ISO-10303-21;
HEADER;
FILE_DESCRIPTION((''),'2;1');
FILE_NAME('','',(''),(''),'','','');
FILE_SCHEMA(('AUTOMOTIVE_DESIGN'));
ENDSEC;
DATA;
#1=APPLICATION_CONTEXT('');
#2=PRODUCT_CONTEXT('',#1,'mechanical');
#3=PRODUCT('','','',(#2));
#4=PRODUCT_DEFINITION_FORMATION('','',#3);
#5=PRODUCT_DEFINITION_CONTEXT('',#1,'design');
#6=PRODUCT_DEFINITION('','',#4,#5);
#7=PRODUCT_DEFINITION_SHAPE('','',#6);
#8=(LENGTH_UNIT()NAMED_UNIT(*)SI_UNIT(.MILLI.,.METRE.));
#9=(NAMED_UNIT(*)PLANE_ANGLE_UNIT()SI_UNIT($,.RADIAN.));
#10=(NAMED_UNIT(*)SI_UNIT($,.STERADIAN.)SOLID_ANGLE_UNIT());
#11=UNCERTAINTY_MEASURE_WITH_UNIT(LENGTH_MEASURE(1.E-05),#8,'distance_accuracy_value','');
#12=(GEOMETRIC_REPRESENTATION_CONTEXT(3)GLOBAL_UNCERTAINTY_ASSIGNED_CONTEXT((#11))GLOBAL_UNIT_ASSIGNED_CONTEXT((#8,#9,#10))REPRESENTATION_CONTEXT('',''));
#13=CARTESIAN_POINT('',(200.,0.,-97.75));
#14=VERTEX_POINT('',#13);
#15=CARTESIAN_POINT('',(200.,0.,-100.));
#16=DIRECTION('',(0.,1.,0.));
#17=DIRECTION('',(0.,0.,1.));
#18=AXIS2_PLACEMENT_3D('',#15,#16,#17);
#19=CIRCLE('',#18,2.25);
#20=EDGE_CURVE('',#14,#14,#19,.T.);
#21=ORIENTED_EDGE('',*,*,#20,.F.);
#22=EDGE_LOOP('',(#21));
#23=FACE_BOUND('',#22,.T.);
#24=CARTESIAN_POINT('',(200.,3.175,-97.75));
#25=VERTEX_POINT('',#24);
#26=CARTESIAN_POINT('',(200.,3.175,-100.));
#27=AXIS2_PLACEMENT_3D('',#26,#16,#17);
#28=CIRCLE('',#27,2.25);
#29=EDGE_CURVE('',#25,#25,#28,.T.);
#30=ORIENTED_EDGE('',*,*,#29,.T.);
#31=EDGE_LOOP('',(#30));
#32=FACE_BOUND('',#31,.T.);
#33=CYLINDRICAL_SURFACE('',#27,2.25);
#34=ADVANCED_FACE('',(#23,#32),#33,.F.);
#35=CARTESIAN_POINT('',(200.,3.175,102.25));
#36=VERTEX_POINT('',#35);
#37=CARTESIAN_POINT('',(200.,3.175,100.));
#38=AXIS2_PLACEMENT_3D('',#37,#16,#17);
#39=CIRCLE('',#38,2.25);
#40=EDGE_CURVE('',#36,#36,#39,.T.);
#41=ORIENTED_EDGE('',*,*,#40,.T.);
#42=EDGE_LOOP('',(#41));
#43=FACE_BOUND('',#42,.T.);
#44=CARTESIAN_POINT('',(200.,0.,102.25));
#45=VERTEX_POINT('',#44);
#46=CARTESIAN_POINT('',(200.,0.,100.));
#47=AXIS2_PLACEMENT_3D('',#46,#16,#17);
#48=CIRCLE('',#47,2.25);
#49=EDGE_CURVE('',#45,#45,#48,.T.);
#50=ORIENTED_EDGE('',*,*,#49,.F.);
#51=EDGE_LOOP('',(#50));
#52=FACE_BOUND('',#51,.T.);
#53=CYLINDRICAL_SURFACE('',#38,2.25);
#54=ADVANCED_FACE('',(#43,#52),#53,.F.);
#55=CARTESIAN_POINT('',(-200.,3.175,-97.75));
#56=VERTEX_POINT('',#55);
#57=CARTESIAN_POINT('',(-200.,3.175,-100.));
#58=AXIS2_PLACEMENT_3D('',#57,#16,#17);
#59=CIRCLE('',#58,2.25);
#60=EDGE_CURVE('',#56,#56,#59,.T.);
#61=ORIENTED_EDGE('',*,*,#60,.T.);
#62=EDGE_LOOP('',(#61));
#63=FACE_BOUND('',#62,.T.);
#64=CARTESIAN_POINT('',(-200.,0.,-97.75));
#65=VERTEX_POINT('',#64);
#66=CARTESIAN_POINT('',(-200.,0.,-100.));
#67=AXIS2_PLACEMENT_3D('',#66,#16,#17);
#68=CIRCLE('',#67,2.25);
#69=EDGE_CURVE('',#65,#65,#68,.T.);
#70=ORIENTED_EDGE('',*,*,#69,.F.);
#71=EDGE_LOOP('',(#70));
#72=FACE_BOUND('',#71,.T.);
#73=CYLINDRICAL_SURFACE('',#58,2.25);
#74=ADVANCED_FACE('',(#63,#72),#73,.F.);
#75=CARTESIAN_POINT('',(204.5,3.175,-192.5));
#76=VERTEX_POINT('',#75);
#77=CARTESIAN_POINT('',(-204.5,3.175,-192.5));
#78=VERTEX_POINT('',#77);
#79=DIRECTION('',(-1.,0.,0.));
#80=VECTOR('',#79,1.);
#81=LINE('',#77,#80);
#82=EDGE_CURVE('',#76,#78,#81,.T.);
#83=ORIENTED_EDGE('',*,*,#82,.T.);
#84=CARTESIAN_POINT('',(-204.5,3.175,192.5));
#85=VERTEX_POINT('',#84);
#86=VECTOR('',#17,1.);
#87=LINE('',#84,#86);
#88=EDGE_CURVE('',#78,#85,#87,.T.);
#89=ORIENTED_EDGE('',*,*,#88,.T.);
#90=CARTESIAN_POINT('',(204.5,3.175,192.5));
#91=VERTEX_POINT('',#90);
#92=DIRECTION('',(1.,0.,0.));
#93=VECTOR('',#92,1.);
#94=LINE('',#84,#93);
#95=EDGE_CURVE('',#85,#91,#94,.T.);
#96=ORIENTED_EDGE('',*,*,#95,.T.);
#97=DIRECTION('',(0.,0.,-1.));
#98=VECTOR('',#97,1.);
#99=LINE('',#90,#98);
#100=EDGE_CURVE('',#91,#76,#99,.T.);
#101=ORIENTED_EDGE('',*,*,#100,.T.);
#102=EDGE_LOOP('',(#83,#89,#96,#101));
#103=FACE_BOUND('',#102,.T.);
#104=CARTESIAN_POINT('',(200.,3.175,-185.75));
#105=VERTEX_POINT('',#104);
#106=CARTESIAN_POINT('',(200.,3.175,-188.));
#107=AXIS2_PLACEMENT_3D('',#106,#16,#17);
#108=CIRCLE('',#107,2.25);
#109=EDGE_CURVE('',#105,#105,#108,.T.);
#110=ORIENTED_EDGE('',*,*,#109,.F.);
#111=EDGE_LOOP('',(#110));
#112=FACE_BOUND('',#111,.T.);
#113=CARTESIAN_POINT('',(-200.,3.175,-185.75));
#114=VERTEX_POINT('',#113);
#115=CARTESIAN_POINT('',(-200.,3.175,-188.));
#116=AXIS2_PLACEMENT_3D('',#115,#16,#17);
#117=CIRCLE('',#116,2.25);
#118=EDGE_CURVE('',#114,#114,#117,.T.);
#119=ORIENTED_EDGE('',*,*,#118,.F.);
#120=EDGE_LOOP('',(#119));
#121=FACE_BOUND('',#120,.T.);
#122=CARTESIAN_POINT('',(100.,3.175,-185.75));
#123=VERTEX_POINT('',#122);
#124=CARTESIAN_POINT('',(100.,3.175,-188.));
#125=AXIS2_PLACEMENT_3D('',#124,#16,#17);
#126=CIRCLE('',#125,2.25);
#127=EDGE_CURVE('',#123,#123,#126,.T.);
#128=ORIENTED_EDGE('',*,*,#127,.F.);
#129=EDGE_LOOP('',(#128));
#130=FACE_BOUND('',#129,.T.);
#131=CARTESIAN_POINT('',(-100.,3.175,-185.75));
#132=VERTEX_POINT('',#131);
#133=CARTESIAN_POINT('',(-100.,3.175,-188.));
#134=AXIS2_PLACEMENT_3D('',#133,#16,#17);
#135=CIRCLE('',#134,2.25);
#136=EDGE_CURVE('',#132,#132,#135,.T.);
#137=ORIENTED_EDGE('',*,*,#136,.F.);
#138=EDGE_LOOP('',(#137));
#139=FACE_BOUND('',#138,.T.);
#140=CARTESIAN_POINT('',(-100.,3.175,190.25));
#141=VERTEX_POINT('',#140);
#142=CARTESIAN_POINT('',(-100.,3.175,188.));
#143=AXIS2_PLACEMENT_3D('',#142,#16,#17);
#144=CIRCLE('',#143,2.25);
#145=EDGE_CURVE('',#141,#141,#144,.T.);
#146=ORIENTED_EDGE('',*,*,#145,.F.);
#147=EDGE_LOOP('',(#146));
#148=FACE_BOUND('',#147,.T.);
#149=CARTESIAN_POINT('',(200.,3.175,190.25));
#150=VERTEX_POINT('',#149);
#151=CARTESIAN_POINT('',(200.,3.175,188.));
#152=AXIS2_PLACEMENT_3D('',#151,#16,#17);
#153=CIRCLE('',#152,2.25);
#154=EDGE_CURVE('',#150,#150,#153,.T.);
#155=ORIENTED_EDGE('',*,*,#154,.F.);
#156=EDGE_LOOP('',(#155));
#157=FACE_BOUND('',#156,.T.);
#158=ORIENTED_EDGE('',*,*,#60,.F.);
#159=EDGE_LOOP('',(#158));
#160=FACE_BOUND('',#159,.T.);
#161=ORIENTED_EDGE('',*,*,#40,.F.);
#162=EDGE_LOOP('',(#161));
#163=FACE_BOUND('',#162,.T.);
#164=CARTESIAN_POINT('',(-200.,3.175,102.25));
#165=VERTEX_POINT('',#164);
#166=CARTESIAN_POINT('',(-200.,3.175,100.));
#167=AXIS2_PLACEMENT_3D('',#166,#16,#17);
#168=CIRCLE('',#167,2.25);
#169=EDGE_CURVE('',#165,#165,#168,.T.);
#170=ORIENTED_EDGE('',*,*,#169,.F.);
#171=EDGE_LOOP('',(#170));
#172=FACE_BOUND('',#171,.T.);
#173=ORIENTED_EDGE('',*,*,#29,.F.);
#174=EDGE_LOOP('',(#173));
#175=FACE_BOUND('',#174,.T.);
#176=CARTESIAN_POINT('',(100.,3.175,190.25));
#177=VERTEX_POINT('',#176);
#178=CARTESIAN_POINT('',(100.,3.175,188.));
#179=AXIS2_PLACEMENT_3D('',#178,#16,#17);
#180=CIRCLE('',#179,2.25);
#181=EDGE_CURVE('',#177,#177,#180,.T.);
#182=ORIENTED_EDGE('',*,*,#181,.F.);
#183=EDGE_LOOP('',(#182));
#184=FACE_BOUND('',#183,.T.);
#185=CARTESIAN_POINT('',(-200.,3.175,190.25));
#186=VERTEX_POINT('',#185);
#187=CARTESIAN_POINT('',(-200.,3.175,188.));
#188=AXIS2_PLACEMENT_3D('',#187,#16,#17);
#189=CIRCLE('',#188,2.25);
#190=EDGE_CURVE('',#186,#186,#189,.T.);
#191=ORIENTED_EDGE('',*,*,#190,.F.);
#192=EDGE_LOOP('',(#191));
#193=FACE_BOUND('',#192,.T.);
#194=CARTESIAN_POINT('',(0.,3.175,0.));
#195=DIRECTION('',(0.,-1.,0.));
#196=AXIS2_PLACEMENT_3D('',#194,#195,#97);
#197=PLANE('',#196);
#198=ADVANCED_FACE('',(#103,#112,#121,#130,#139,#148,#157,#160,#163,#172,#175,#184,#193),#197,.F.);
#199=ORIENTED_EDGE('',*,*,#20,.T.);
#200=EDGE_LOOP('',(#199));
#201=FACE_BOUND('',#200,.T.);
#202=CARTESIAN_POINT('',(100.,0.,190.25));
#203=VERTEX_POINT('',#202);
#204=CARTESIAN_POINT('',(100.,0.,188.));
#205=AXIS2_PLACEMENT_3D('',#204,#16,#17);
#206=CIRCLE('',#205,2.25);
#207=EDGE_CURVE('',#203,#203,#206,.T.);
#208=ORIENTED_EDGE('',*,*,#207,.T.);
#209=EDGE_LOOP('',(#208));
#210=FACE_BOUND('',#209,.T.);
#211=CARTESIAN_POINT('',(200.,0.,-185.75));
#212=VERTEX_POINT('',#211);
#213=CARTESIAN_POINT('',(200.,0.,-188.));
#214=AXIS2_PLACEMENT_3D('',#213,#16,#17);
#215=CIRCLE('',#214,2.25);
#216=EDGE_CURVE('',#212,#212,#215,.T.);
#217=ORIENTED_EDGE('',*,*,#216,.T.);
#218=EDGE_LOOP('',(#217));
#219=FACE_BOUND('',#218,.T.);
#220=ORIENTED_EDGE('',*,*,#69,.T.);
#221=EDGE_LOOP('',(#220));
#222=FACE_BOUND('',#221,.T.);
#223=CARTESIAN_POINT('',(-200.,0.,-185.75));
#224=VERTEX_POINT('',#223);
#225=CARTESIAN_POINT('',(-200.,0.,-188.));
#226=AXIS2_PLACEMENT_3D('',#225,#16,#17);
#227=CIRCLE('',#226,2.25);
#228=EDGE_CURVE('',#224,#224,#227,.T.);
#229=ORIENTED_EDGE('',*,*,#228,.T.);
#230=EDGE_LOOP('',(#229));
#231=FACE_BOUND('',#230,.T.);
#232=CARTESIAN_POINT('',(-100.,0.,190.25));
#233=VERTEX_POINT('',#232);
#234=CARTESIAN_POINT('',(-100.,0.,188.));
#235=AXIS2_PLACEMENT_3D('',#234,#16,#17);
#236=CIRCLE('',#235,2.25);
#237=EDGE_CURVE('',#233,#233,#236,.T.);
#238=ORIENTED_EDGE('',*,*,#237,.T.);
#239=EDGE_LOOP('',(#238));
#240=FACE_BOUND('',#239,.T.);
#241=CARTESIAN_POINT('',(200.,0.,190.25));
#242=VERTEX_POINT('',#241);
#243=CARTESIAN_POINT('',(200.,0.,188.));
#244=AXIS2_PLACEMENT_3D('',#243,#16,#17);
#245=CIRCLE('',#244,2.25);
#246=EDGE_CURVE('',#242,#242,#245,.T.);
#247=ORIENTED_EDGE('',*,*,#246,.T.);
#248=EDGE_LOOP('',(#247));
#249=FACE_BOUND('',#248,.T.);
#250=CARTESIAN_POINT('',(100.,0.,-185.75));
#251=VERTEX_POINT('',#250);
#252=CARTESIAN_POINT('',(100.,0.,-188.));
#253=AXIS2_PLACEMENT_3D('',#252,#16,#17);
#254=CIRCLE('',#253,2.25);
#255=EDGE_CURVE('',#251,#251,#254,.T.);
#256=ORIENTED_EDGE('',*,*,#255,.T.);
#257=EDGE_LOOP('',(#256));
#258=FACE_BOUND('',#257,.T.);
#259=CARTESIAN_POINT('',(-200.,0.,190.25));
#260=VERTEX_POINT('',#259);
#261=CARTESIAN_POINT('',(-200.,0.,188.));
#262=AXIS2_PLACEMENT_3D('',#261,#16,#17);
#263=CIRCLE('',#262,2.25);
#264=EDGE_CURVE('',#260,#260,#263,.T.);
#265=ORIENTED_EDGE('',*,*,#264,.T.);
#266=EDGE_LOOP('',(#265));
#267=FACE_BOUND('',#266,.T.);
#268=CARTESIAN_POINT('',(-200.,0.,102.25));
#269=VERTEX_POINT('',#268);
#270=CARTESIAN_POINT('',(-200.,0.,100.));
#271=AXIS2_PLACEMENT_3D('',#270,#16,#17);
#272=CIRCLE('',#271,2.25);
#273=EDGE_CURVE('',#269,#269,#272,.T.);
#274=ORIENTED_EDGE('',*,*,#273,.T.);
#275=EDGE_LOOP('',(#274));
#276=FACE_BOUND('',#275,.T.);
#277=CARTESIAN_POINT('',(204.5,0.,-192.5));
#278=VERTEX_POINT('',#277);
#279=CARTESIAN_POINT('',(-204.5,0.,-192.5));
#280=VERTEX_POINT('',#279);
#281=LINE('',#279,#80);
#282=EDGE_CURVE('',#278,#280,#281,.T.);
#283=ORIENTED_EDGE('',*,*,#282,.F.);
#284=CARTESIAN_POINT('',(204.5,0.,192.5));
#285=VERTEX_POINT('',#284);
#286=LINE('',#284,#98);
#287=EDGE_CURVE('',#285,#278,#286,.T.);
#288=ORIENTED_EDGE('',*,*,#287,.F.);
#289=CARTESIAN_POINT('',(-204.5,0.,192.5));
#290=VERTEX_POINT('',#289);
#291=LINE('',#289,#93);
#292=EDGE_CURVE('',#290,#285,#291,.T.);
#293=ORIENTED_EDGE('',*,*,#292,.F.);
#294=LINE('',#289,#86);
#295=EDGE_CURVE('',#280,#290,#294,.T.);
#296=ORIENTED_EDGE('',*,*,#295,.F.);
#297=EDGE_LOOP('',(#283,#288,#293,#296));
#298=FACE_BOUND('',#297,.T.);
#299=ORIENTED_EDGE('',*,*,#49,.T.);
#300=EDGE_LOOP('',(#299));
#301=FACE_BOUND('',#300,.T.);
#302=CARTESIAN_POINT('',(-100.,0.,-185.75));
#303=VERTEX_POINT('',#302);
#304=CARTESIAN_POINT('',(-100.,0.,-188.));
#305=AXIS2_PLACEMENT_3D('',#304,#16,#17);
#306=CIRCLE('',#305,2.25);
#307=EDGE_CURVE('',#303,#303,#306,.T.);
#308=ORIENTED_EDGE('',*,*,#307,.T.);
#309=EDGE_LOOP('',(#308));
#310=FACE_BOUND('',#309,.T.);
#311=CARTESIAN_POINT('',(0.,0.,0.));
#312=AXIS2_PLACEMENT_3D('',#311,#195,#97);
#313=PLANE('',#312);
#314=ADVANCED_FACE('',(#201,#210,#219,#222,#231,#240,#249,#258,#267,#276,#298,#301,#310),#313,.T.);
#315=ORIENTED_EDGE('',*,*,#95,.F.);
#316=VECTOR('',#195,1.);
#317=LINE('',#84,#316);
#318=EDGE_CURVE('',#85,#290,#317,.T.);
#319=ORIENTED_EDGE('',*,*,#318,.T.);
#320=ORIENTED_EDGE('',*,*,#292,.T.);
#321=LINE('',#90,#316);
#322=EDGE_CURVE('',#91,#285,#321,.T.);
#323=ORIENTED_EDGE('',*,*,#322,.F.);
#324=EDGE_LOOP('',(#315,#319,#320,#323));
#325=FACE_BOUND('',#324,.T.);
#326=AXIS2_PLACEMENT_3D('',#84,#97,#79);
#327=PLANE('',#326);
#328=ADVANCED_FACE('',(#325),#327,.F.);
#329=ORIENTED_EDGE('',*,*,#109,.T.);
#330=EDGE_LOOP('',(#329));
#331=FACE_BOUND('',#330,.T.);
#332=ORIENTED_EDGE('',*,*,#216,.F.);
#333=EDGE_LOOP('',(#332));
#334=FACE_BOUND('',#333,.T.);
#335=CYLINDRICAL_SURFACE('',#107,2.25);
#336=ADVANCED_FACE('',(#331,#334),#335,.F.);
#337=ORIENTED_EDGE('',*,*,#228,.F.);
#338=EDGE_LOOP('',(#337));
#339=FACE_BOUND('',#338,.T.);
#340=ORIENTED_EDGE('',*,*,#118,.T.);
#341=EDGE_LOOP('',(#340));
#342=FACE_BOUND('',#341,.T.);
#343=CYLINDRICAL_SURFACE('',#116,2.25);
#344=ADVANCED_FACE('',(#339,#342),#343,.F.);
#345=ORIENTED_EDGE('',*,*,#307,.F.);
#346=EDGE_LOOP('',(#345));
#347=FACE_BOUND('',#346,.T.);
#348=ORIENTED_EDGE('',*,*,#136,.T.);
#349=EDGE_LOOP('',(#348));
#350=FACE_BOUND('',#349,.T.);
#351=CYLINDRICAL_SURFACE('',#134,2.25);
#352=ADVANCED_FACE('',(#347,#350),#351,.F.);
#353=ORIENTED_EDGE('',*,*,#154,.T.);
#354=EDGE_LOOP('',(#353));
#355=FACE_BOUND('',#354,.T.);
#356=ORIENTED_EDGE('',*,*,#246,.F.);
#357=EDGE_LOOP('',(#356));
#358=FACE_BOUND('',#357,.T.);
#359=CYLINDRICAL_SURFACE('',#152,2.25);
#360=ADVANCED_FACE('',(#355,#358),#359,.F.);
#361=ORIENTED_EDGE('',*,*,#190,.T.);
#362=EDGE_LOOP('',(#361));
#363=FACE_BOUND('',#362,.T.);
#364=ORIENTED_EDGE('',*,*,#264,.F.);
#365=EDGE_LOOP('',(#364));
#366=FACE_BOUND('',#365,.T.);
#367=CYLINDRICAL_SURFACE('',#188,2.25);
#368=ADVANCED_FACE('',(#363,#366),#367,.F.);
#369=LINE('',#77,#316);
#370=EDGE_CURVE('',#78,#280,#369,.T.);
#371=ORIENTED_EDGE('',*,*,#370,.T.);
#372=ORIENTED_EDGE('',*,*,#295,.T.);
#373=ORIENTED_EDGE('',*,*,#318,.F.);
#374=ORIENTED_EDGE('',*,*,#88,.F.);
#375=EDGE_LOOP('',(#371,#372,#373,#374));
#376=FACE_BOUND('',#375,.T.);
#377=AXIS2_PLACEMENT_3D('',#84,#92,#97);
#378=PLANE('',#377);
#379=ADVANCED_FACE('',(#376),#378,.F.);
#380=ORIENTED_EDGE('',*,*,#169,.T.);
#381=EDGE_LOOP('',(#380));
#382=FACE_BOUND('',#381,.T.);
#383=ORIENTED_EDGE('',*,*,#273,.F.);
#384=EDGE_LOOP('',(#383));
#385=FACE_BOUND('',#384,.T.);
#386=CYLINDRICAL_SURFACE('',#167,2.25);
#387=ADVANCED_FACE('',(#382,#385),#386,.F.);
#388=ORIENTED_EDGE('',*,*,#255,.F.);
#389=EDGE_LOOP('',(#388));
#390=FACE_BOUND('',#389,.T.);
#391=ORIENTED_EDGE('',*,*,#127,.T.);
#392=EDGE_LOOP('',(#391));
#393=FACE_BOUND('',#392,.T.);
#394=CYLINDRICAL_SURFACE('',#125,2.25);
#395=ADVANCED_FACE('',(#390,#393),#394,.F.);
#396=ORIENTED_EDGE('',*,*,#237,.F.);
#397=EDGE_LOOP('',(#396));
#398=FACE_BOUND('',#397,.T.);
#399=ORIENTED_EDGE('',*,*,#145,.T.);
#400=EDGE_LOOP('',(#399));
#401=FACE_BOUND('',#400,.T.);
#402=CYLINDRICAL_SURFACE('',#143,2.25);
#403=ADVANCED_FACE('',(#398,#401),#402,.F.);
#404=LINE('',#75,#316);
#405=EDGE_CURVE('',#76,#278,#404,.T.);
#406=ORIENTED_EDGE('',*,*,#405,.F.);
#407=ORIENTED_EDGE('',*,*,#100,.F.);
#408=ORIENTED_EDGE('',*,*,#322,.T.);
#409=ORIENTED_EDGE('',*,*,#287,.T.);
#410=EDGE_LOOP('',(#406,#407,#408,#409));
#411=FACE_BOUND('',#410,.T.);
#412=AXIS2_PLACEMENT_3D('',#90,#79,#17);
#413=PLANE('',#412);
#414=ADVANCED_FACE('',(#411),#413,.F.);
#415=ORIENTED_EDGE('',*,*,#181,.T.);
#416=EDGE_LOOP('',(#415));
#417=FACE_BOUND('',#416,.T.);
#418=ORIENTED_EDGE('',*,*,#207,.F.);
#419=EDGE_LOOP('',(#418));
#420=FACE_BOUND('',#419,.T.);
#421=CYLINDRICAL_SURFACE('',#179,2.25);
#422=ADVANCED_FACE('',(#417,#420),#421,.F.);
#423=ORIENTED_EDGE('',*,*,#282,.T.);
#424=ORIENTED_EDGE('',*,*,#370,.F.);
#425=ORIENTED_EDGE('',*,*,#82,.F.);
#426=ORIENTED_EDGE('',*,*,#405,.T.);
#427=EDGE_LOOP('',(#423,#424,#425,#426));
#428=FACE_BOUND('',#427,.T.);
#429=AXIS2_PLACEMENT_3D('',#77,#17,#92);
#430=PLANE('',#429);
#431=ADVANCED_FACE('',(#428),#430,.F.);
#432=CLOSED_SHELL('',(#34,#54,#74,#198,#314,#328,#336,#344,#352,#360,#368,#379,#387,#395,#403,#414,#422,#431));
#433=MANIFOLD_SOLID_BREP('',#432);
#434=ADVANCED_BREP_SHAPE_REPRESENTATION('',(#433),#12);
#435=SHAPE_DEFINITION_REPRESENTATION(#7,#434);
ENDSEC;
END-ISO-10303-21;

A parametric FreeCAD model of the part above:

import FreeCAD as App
import Part
import Sketcher
Q = App.Units.Quantity


def add_polygon(sketch, points):
    """Adds a closed chain of lines whose ends are joined by coincident constraints."""
    first, n = sketch.GeometryCount, len(points)
    for a, b in zip(points, points[1:] + points[:1]):
        sketch.addGeometry(Part.LineSegment(App.Vector(*a, 0), App.Vector(*b, 0)), False)
    for i in range(n):
        sketch.addConstraint(Sketcher.Constraint("Coincident", first + i, 2, first + (i + 1) % n, 1))

doc = App.newDocument("Part")
params = doc.addObject("Spreadsheet::Sheet", "Params")
for row, (alias, value) in enumerate([
    ("sketch1_width", "409 mm"),
    ("sketch1_height", "385 mm"),
    ("pad1_length", "3.175 mm"),
    ("sketch2_diameter", "4.5 mm"),
    ("hole_diameter", "4.5 mm"),
], start=1):
    params.set(f"A{row}", alias)
    params.set(f"B{row}", "=" + value)
    params.setAlias(f"B{row}", alias)

body = doc.addObject("PartDesign::Body", "Body")

sketch1 = body.newObject("Sketcher::SketchObject", "Sketch")
sketch1.AttachmentSupport = (doc.getObject("XZ_Plane"), [""])
sketch1.MapMode = "FlatFace"
add_polygon(sketch1, [(-204.5, -192.5), (-204.5, 192.5), (204.5, 192.5), (204.5, -192.5)])
sketch1.addConstraint([
    Sketcher.Constraint("Vertical", 0),
    Sketcher.Constraint("Horizontal", 1),
    Sketcher.Constraint("Vertical", 2),
    Sketcher.Constraint("Horizontal", 3),
    Sketcher.Constraint("Symmetric", 0, 2, 2, 2, -1, 1),
    Sketcher.Constraint("DistanceX", 1, 1, 1, 2, Q("409 mm")),
    Sketcher.Constraint("DistanceY", 0, 1, 0, 2, Q("385 mm")),
])
sketch1.setExpression("Constraints[9]", "Params.sketch1_width")
sketch1.setExpression("Constraints[10]", "Params.sketch1_height")
pad1 = body.newObject("PartDesign::Pad", "Pad")
pad1.Profile = sketch1
pad1.setExpression("Length", "Params.pad1_length")
pad1.Reversed = True

sketch2 = body.newObject("Sketcher::SketchObject", "Sketch001")
sketch2.AttachmentSupport = (doc.getObject("XZ_Plane"), [""])
sketch2.MapMode = "FlatFace"
sketch2.AttachmentOffset = App.Placement(App.Vector(0, 0, -3.175), App.Rotation())
sketch2.addGeometry([
    Part.Circle(App.Vector(-200, -188, 0), App.Vector(0, 0, 1), 2.25),
    Part.Circle(App.Vector(-200, -100, 0), App.Vector(0, 0, 1), 2.25),
    Part.Circle(App.Vector(-200, 100, 0), App.Vector(0, 0, 1), 2.25),
    Part.Circle(App.Vector(200, 100, 0), App.Vector(0, 0, 1), 2.25),
    Part.Circle(App.Vector(200, -100, 0), App.Vector(0, 0, 1), 2.25),
    Part.Circle(App.Vector(200, -188, 0), App.Vector(0, 0, 1), 2.25),
    Part.Circle(App.Vector(-100, -188, 0), App.Vector(0, 0, 1), 2.25),
    Part.Circle(App.Vector(100, -188, 0), App.Vector(0, 0, 1), 2.25),
    Part.Circle(App.Vector(100, 188, 0), App.Vector(0, 0, 1), 2.25),
    Part.Circle(App.Vector(-100, 188, 0), App.Vector(0, 0, 1), 2.25),
    Part.Circle(App.Vector(200, 188, 0), App.Vector(0, 0, 1), 2.25),
    Part.Circle(App.Vector(-200, 188, 0), App.Vector(0, 0, 1), 2.25),
], False)
sketch2.addConstraint([
    Sketcher.Constraint("Equal", 0, 1),
    Sketcher.Constraint("Equal", 1, 2),
    Sketcher.Constraint("Equal", 2, 3),
    Sketcher.Constraint("Equal", 3, 4),
    Sketcher.Constraint("Equal", 4, 5),
    Sketcher.Constraint("Equal", 5, 6),
    Sketcher.Constraint("Equal", 6, 7),
    Sketcher.Constraint("Equal", 7, 8),
    Sketcher.Constraint("Equal", 8, 9),
    Sketcher.Constraint("Equal", 9, 10),
    Sketcher.Constraint("Equal", 10, 11),
    Sketcher.Constraint("Symmetric", 1, 3, 3, 3, -1, 1),
    Sketcher.Constraint("Symmetric", 2, 3, 4, 3, -1, 1),
    Sketcher.Constraint("Symmetric", 6, 3, 8, 3, -1, 1),
    Sketcher.Constraint("Symmetric", 7, 3, 9, 3, -1, 1),
    Sketcher.Constraint("Symmetric", 0, 3, 10, 3, -1, 1),
    Sketcher.Constraint("Symmetric", 5, 3, 11, 3, -1, 1),
    Sketcher.Constraint("Symmetric", 2, 3, 3, 3, -2),
    Sketcher.Constraint("Symmetric", 0, 3, 5, 3, -2),
    Sketcher.Constraint("Symmetric", 6, 3, 7, 3, -2),
    Sketcher.Constraint("Horizontal", 5, 3, 6, 3),
    Sketcher.Constraint("Vertical", 0, 3, 1, 3),
    Sketcher.Constraint("Diameter", 0, Q("4.5 mm")),
    Sketcher.Constraint("DistanceX", 0, 3, -1, 1, Q("200 mm")),
    Sketcher.Constraint("DistanceY", 0, 3, -1, 1, Q("188 mm")),
    Sketcher.Constraint("DistanceY", 1, 3, -1, 1, Q("100 mm")),
    Sketcher.Constraint("DistanceX", 6, 3, -1, 1, Q("100 mm")),
])
sketch2.setExpression("Constraints[22]", "Params.sketch2_diameter")
doc.recompute()
hole = body.newObject("PartDesign::Hole", "Hole")
hole.Profile = sketch2
hole.ThreadType = "None"
hole.setExpression("Diameter", "Params.hole_diameter")
hole.DepthType = "ThroughAll"
hole.Reversed = True

doc.recompute()
